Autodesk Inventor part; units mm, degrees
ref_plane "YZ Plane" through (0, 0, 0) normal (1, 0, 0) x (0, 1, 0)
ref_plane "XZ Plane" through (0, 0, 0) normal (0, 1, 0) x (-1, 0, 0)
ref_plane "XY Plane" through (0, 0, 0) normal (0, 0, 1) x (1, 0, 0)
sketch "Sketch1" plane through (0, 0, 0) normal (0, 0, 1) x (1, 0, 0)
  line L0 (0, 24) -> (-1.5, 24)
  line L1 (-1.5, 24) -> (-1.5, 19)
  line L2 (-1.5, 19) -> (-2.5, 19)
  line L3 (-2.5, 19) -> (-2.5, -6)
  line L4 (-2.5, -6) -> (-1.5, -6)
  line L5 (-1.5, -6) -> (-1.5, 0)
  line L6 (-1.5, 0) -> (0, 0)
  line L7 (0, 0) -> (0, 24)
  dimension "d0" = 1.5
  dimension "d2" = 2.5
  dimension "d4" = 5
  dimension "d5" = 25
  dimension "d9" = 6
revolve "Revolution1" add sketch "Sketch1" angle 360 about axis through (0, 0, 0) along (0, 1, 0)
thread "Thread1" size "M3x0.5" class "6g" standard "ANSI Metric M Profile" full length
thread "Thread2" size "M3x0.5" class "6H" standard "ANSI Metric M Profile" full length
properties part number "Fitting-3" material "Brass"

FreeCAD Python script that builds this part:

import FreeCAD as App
import Part
import Sketcher
from FreeCAD import Vector


def add_polygon(sketch, points):
    """Adds a closed chain of lines whose ends are joined by coincident constraints."""
    first, n = sketch.GeometryCount, len(points)
    for a, b in zip(points, points[1:] + points[:1]):
        sketch.addGeometry(Part.LineSegment(App.Vector(*a, 0), App.Vector(*b, 0)), False)
    for i in range(n):
        sketch.addConstraint(Sketcher.Constraint("Coincident", first + i, 2, first + (i + 1) % n, 1))

doc = App.newDocument("Part")
body = doc.addObject("PartDesign::Body", "Body")

# Sketch on XY plane
sketch1 = body.newObject("Sketcher::SketchObject", "Sketch")
sketch1.AttachmentSupport = (doc.getObject("XY_Plane"), [""])
sketch1.MapMode = "FlatFace"
add_polygon(sketch1, [(0, 0), (0, 24), (-1.5, 24), (-1.5, 19), (-2.5, 19), (-2.5, -6), (-1.5, -6), (-1.5, 0)])  # lines 0-7
sketch1.addConstraint(Sketcher.Constraint("Vertical", 0))
sketch1.addConstraint(Sketcher.Constraint("Horizontal", 1))
sketch1.addConstraint(Sketcher.Constraint("Vertical", 2))
sketch1.addConstraint(Sketcher.Constraint("Horizontal", 3))
sketch1.addConstraint(Sketcher.Constraint("Vertical", 4))
sketch1.addConstraint(Sketcher.Constraint("Horizontal", 5))
sketch1.addConstraint(Sketcher.Constraint("Vertical", 6))
sketch1.addConstraint(Sketcher.Constraint("Horizontal", 7))
sketch1.addConstraint(Sketcher.Constraint("Coincident", 7, 2, -1, 1))
sketch1.addConstraint(Sketcher.Constraint("Vertical", 2, 2, 5, 2))
sketch1.addConstraint(Sketcher.Constraint("DistanceY", 2, 2, 2, 1, 5.0))
sketch1.addConstraint(Sketcher.Constraint("DistanceY", 4, 2, 4, 1, 25.0))
sketch1.addConstraint(Sketcher.Constraint("DistanceY", 6, 1, 6, 2, 6.0))
sketch1.addConstraint(Sketcher.Constraint("DistanceX", 1, 2, 1, 1, 1.5))
sketch1.addConstraint(Sketcher.Constraint("DistanceX", 3, 2, -1, 1, 2.5))
revolution = body.newObject("PartDesign::Revolution", "Revolution")
revolution.Profile = sketch1
revolution.ReferenceAxis = (sketch1, ["V_Axis"])
revolution.Angle = 360

doc.recompute()
